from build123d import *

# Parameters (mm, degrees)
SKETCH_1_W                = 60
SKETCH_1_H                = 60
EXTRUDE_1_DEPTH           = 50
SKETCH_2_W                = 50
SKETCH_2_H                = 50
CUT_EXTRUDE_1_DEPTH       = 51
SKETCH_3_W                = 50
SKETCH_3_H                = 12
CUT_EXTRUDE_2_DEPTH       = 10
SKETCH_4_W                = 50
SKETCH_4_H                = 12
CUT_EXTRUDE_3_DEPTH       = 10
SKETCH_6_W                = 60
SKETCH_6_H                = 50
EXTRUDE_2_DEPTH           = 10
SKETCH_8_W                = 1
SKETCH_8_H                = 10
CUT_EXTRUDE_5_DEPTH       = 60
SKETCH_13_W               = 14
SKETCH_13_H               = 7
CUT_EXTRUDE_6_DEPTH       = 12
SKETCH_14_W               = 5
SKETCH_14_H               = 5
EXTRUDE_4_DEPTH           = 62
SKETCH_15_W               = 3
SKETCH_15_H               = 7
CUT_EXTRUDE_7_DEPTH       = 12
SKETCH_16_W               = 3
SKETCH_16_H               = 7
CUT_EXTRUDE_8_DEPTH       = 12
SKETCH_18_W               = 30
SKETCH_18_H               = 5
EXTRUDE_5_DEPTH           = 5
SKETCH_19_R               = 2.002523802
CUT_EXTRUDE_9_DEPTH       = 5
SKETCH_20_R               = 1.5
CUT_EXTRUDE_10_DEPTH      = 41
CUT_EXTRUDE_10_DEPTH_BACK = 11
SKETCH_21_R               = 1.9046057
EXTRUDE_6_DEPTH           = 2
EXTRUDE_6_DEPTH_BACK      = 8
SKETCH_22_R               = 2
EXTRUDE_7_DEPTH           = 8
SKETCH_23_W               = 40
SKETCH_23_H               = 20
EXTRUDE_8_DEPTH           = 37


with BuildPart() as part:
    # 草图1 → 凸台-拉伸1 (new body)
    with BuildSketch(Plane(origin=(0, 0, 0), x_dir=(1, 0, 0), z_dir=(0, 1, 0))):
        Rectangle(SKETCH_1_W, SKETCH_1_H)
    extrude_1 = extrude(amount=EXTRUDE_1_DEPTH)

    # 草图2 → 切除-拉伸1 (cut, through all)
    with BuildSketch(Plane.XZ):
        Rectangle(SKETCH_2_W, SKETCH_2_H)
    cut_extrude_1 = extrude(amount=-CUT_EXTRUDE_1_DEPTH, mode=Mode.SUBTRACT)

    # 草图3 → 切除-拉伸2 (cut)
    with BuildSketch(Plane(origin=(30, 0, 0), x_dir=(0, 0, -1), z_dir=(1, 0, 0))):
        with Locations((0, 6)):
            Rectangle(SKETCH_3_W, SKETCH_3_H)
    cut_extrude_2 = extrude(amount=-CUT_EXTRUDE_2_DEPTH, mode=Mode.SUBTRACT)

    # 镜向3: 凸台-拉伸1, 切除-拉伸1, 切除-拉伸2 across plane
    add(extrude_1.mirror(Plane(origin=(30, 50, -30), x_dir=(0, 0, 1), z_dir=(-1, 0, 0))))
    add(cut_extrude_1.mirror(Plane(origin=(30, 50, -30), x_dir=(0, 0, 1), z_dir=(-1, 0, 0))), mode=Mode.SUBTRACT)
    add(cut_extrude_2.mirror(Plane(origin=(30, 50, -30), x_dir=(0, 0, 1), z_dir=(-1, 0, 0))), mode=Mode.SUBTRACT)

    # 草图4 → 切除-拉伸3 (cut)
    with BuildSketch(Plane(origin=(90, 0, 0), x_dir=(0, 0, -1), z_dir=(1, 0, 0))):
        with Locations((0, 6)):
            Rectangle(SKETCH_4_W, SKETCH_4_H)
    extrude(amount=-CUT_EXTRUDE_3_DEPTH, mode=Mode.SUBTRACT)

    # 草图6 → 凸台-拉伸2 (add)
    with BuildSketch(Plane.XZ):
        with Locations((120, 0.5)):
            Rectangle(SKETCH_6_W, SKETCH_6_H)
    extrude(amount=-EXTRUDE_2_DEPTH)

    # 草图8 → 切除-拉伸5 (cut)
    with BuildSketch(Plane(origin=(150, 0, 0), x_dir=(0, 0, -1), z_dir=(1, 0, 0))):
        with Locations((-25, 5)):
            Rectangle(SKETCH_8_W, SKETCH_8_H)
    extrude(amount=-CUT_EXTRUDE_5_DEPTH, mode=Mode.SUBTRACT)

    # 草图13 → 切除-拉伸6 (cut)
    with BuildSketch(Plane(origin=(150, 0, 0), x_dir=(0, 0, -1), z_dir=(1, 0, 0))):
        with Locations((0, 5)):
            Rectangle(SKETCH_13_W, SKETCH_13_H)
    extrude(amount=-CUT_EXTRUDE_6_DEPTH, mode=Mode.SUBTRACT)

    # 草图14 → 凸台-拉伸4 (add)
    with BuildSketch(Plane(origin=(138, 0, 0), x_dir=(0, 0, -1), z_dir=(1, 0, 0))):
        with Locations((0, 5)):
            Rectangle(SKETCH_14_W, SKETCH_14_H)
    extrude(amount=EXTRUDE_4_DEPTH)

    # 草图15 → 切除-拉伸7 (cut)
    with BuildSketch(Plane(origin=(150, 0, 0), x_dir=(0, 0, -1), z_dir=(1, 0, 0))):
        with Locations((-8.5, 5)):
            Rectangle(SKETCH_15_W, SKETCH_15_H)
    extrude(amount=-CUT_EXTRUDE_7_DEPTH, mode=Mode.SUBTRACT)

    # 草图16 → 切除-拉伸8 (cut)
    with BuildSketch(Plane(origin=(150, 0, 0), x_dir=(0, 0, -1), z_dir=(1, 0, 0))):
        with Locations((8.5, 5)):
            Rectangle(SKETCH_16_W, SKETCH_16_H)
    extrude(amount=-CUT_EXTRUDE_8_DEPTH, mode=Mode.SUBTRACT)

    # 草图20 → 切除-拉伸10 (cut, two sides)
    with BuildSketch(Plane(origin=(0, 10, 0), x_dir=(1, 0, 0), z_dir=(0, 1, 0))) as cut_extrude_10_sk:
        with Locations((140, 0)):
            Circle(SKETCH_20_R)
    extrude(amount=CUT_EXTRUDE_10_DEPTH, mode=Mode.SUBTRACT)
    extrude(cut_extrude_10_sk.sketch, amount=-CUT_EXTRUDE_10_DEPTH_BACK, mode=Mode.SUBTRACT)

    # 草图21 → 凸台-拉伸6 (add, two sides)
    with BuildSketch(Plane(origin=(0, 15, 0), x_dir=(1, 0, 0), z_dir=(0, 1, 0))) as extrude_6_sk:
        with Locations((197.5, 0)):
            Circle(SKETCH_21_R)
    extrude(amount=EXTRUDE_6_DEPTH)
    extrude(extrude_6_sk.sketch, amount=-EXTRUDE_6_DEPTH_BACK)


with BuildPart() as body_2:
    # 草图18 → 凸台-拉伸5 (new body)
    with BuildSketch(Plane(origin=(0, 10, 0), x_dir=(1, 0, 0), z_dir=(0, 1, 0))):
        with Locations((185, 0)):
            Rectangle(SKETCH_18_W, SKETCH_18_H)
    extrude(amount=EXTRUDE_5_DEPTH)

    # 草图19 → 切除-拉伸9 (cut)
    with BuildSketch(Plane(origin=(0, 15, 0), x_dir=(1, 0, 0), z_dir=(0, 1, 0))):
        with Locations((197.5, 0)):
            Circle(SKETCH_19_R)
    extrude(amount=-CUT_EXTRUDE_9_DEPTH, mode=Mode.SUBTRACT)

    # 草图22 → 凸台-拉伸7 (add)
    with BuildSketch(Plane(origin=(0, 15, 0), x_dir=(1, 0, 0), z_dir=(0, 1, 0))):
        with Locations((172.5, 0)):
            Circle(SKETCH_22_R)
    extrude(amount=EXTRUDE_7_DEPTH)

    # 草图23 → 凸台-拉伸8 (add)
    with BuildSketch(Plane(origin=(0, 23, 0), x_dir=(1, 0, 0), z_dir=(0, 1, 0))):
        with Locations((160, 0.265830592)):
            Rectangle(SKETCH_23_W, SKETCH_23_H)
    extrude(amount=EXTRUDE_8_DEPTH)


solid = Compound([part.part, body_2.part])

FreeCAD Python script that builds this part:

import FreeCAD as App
import Part
import Sketcher

V = App.Vector
Q = App.Units.Quantity


def add_polygon(sketch, points):
    """Adds a closed chain of lines whose ends are joined by coincident constraints."""
    first, n = sketch.GeometryCount, len(points)
    for a, b in zip(points, points[1:] + points[:1]):
        sketch.addGeometry(Part.LineSegment(App.Vector(*a, 0), App.Vector(*b, 0)), False)
    for i in range(n):
        sketch.addConstraint(Sketcher.Constraint("Coincident", first + i, 2, first + (i + 1) % n, 1))

doc = App.newDocument("Part")
params = doc.addObject("Spreadsheet::Sheet", "Params")
for row, (alias, value) in enumerate([
    ("sketch1_width", "60 mm"),
    ("pad1_length", "50 mm"),
    ("sketch2_width", "50 mm"),
    ("sketch3_width", "12 mm"),
    ("sketch3_height", "50 mm"),
    ("pocket2_length", "10 mm"),
    ("sketch4_width", "12 mm"),
    ("sketch4_height", "50 mm"),
    ("pocket3_length", "10 mm"),
    ("sketch5_width", "60 mm"),
    ("sketch5_height", "50 mm"),
    ("pad2_length", "10 mm"),
    ("sketch6_width", "10 mm"),
    ("sketch6_height", "1 mm"),
    ("pocket4_length", "60 mm"),
    ("sketch7_width", "7 mm"),
    ("sketch7_height", "14 mm"),
    ("pocket5_length", "12 mm"),
    ("sketch8_width", "5 mm"),
    ("pad3_length", "62 mm"),
    ("sketch9_width", "7 mm"),
    ("sketch9_height", "3 mm"),
    ("pocket6_length", "12 mm"),
    ("sketch10_width", "7 mm"),
    ("sketch10_height", "3 mm"),
    ("pocket7_length", "12 mm"),
    ("sketch11_diameter", "3 mm"),
    ("pad4_length", "2 mm"),
    ("pad4_length2", "8 mm"),
    ("sketch13_width", "30 mm"),
    ("sketch13_height", "5 mm"),
    ("pad5_length", "5 mm"),
    ("pocket9_length", "5 mm"),
    ("sketch15_diameter", "4 mm"),
    ("pad6_length", "8 mm"),
    ("sketch16_width", "40 mm"),
    ("sketch16_height", "20 mm"),
    ("pad7_length", "37 mm"),
], start=1):
    params.set(f"A{row}", alias)
    params.set(f"B{row}", "=" + value)
    params.setAlias(f"B{row}", alias)

body = doc.addObject("PartDesign::Body", "Body")
body.AllowCompound = True

sketch1 = doc.addObject("Sketcher::SketchObject", "Sketch")
body.addObject(sketch1)
sketch1.AttachmentSupport = (doc.XZ_Plane, [""])
sketch1.MapMode = "FlatFace"
add_polygon(sketch1, [(-30, -30), (-30, 30), (30, 30), (30, -30)])
sketch1.addConstraint(Sketcher.Constraint("Vertical", 0))
sketch1.addConstraint(Sketcher.Constraint("Horizontal", 1))
sketch1.addConstraint(Sketcher.Constraint("Vertical", 2))
sketch1.addConstraint(Sketcher.Constraint("Horizontal", 3))
sketch1.addConstraint(Sketcher.Constraint("Symmetric", 0, 2, 2, 2, -1, 1))
sketch1.addConstraint(Sketcher.Constraint("Equal", 3, 0))
sketch1.addConstraint(Sketcher.Constraint("DistanceX", 1, 1, 1, 2, Q("60 mm")))
sketch1.setExpression("Constraints[10]", "Params.sketch1_width")
pad1 = doc.addObject("PartDesign::Pad", "Pad")
body.addObject(pad1)
pad1.Profile = sketch1
pad1.setExpression("Length", "Params.pad1_length")
pad1.Reversed = True

sketch2 = doc.addObject("Sketcher::SketchObject", "Sketch001")
body.addObject(sketch2)
sketch2.AttachmentSupport = (doc.XZ_Plane, [""])
sketch2.MapMode = "FlatFace"
add_polygon(sketch2, [(-25, 25), (-25, -25), (25, -25), (25, 25)])
sketch2.addConstraint(Sketcher.Constraint("Vertical", 0))
sketch2.addConstraint(Sketcher.Constraint("Horizontal", 1))
sketch2.addConstraint(Sketcher.Constraint("Vertical", 2))
sketch2.addConstraint(Sketcher.Constraint("Horizontal", 3))
sketch2.addConstraint(Sketcher.Constraint("Symmetric", 0, 2, 2, 2, -1, 1))
sketch2.addConstraint(Sketcher.Constraint("Equal", 3, 0))
sketch2.addConstraint(Sketcher.Constraint("DistanceX", 1, 1, 1, 2, Q("50 mm")))
sketch2.setExpression("Constraints[10]", "Params.sketch2_width")
pocket1 = doc.addObject("PartDesign::Pocket", "Pocket")
body.addObject(pocket1)
pocket1.Profile = sketch2
pocket1.Type = "ThroughAll"

sketch3 = doc.addObject("Sketcher::SketchObject", "Sketch002")
body.addObject(sketch3)
sketch3.AttachmentSupport = (doc.YZ_Plane, [""])
sketch3.MapMode = "FlatFace"
sketch3.AttachmentOffset = App.Placement(V(0, 0, 30), App.Rotation())
add_polygon(sketch3, [(12, 25), (0, 25), (0, -25), (12, -25)])
sketch3.addConstraint(Sketcher.Constraint("Horizontal", 0))
sketch3.addConstraint(Sketcher.Constraint("Vertical", 1))
sketch3.addConstraint(Sketcher.Constraint("Horizontal", 2))
sketch3.addConstraint(Sketcher.Constraint("Vertical", 3))
sketch3.addConstraint(Sketcher.Constraint("Symmetric", 0, 2, 1, 2, -1, 1))
sketch3.addConstraint(Sketcher.Constraint("DistanceX", 0, 2, 0, 1, Q("12 mm")))
sketch3.addConstraint(Sketcher.Constraint("DistanceY", 1, 2, 1, 1, Q("50 mm")))
sketch3.setExpression("Constraints[9]", "Params.sketch3_width")
sketch3.setExpression("Constraints[10]", "Params.sketch3_height")
pocket2 = doc.addObject("PartDesign::Pocket", "Pocket001")
body.addObject(pocket2)
pocket2.Profile = sketch3
pocket2.setExpression("Length", "Params.pocket2_length")
doc.recompute()

datumplane = doc.addObject("PartDesign::Plane", "DatumPlane")
body.addObject(datumplane)
datumplane.AttachmentSupport = (doc.YZ_Plane, [""])
datumplane.MapMode = "FlatFace"
datumplane.AttachmentOffset = App.Placement(V(0, 0, 30), App.Rotation())
mirrored = doc.addObject("PartDesign::Mirrored", "Mirrored")
body.addObject(mirrored)
mirrored.Originals = [pad1, pocket1, pocket2]
mirrored.MirrorPlane = (datumplane, [""])
body.Tip = mirrored

sketch4 = doc.addObject("Sketcher::SketchObject", "Sketch003")
body.addObject(sketch4)
sketch4.AttachmentSupport = (doc.YZ_Plane, [""])
sketch4.MapMode = "FlatFace"
sketch4.AttachmentOffset = App.Placement(V(0, 0, 90), App.Rotation())
add_polygon(sketch4, [(12, 25), (0, 25), (0, -25), (12, -25)])
sketch4.addConstraint(Sketcher.Constraint("Horizontal", 0))
sketch4.addConstraint(Sketcher.Constraint("Vertical", 1))
sketch4.addConstraint(Sketcher.Constraint("Horizontal", 2))
sketch4.addConstraint(Sketcher.Constraint("Vertical", 3))
sketch4.addConstraint(Sketcher.Constraint("Symmetric", 0, 2, 1, 2, -1, 1))
sketch4.addConstraint(Sketcher.Constraint("DistanceX", 0, 2, 0, 1, Q("12 mm")))
sketch4.addConstraint(Sketcher.Constraint("DistanceY", 1, 2, 1, 1, Q("50 mm")))
sketch4.setExpression("Constraints[9]", "Params.sketch4_width")
sketch4.setExpression("Constraints[10]", "Params.sketch4_height")
pocket3 = doc.addObject("PartDesign::Pocket", "Pocket002")
body.addObject(pocket3)
pocket3.Profile = sketch4
pocket3.setExpression("Length", "Params.pocket3_length")

sketch5 = doc.addObject("Sketcher::SketchObject", "Sketch004")
body.addObject(sketch5)
sketch5.AttachmentSupport = (doc.XZ_Plane, [""])
sketch5.MapMode = "FlatFace"
add_polygon(sketch5, [(90, 25.5), (90, -24.5), (150, -24.5), (150, 25.5)])
sketch5.addConstraint(Sketcher.Constraint("Vertical", 0))
sketch5.addConstraint(Sketcher.Constraint("Horizontal", 1))
sketch5.addConstraint(Sketcher.Constraint("Vertical", 2))
sketch5.addConstraint(Sketcher.Constraint("Horizontal", 3))
sketch5.addConstraint(Sketcher.Constraint("DistanceX", 1, 1, 1, 2, Q("60 mm")))
sketch5.addConstraint(Sketcher.Constraint("DistanceY", 0, 2, 0, 1, Q("50 mm")))
sketch5.addConstraint(Sketcher.Constraint("DistanceX", -1, 1, 0, 2, Q("90 mm")))
sketch5.addConstraint(Sketcher.Constraint("DistanceY", 0, 2, -1, 1, Q("24.5 mm")))
sketch5.setExpression("Constraints[8]", "Params.sketch5_width")
sketch5.setExpression("Constraints[9]", "Params.sketch5_height")
pad2 = doc.addObject("PartDesign::Pad", "Pad001")
body.addObject(pad2)
pad2.Profile = sketch5
pad2.setExpression("Length", "Params.pad2_length")
pad2.Reversed = True

sketch6 = doc.addObject("Sketcher::SketchObject", "Sketch005")
body.addObject(sketch6)
sketch6.AttachmentSupport = (doc.YZ_Plane, [""])
sketch6.MapMode = "FlatFace"
sketch6.AttachmentOffset = App.Placement(V(0, 0, 150), App.Rotation())
add_polygon(sketch6, [(10, 25.5), (0, 25.5), (0, 24.5), (10, 24.5)])
sketch6.addConstraint(Sketcher.Constraint("Horizontal", 0))
sketch6.addConstraint(Sketcher.Constraint("Vertical", 1))
sketch6.addConstraint(Sketcher.Constraint("Horizontal", 2))
sketch6.addConstraint(Sketcher.Constraint("Vertical", 3))
sketch6.addConstraint(Sketcher.Constraint("PointOnObject", 0, 2, -2))
sketch6.addConstraint(Sketcher.Constraint("DistanceX", 0, 2, 0, 1, Q("10 mm")))
sketch6.addConstraint(Sketcher.Constraint("DistanceY", 1, 2, 1, 1, Q("1 mm")))
sketch6.addConstraint(Sketcher.Constraint("DistanceY", -1, 1, 0, 2, Q("25.5 mm")))
sketch6.setExpression("Constraints[9]", "Params.sketch6_width")
sketch6.setExpression("Constraints[10]", "Params.sketch6_height")
pocket4 = doc.addObject("PartDesign::Pocket", "Pocket003")
body.addObject(pocket4)
pocket4.Profile = sketch6
pocket4.setExpression("Length", "Params.pocket4_length")

sketch7 = doc.addObject("Sketcher::SketchObject", "Sketch006")
body.addObject(sketch7)
sketch7.AttachmentSupport = (doc.YZ_Plane, [""])
sketch7.MapMode = "FlatFace"
sketch7.AttachmentOffset = App.Placement(V(0, 0, 150), App.Rotation())
add_polygon(sketch7, [(8.5, 7), (1.5, 7), (1.5, -7), (8.5, -7)])
sketch7.addConstraint(Sketcher.Constraint("Horizontal", 0))
sketch7.addConstraint(Sketcher.Constraint("Vertical", 1))
sketch7.addConstraint(Sketcher.Constraint("Horizontal", 2))
sketch7.addConstraint(Sketcher.Constraint("Vertical", 3))
sketch7.addConstraint(Sketcher.Constraint("DistanceX", 0, 2, 0, 1, Q("7 mm")))
sketch7.addConstraint(Sketcher.Constraint("DistanceY", 1, 2, 1, 1, Q("14 mm")))
sketch7.addConstraint(Sketcher.Constraint("DistanceY", -1, 1, 0, 2, Q("7 mm")))
sketch7.addConstraint(Sketcher.Constraint("DistanceX", -1, 1, 0, 2, Q("1.5 mm")))
sketch7.setExpression("Constraints[8]", "Params.sketch7_width")
sketch7.setExpression("Constraints[9]", "Params.sketch7_height")
pocket5 = doc.addObject("PartDesign::Pocket", "Pocket004")
body.addObject(pocket5)
pocket5.Profile = sketch7
pocket5.setExpression("Length", "Params.pocket5_length")

sketch8 = doc.addObject("Sketcher::SketchObject", "Sketch007")
body.addObject(sketch8)
sketch8.AttachmentSupport = (doc.YZ_Plane, [""])
sketch8.MapMode = "FlatFace"
sketch8.AttachmentOffset = App.Placement(V(0, 0, 138), App.Rotation())
add_polygon(sketch8, [(7.5, 2.5), (2.5, 2.5), (2.5, -2.5), (7.5, -2.5)])
sketch8.addConstraint(Sketcher.Constraint("Horizontal", 0))
sketch8.addConstraint(Sketcher.Constraint("Vertical", 1))
sketch8.addConstraint(Sketcher.Constraint("Horizontal", 2))
sketch8.addConstraint(Sketcher.Constraint("Vertical", 3))
sketch8.addConstraint(Sketcher.Constraint("Equal", 2, 1))
sketch8.addConstraint(Sketcher.Constraint("DistanceX", 0, 2, 0, 1, Q("5 mm")))
sketch8.addConstraint(Sketcher.Constraint("DistanceX", -1, 1, 0, 2, Q("2.5 mm")))
sketch8.addConstraint(Sketcher.Constraint("DistanceY", -1, 1, 0, 2, Q("2.5 mm")))
sketch8.setExpression("Constraints[9]", "Params.sketch8_width")
pad3 = doc.addObject("PartDesign::Pad", "Pad002")
body.addObject(pad3)
pad3.Profile = sketch8
pad3.setExpression("Length", "Params.pad3_length")

sketch9 = doc.addObject("Sketcher::SketchObject", "Sketch008")
body.addObject(sketch9)
sketch9.AttachmentSupport = (doc.YZ_Plane, [""])
sketch9.MapMode = "FlatFace"
sketch9.AttachmentOffset = App.Placement(V(0, 0, 150), App.Rotation())
add_polygon(sketch9, [(8.5, 10), (1.5, 10), (1.5, 7), (8.5, 7)])
sketch9.addConstraint(Sketcher.Constraint("Horizontal", 0))
sketch9.addConstraint(Sketcher.Constraint("Vertical", 1))
sketch9.addConstraint(Sketcher.Constraint("Horizontal", 2))
sketch9.addConstraint(Sketcher.Constraint("Vertical", 3))
sketch9.addConstraint(Sketcher.Constraint("DistanceX", 0, 2, 0, 1, Q("7 mm")))
sketch9.addConstraint(Sketcher.Constraint("DistanceY", 1, 2, 1, 1, Q("3 mm")))
sketch9.addConstraint(Sketcher.Constraint("DistanceY", -1, 1, 0, 2, Q("10 mm")))
sketch9.addConstraint(Sketcher.Constraint("DistanceX", -1, 1, 0, 2, Q("1.5 mm")))
sketch9.setExpression("Constraints[8]", "Params.sketch9_width")
sketch9.setExpression("Constraints[9]", "Params.sketch9_height")
pocket6 = doc.addObject("PartDesign::Pocket", "Pocket005")
body.addObject(pocket6)
pocket6.Profile = sketch9
pocket6.setExpression("Length", "Params.pocket6_length")

sketch10 = doc.addObject("Sketcher::SketchObject", "Sketch009")
body.addObject(sketch10)
sketch10.AttachmentSupport = (doc.YZ_Plane, [""])
sketch10.MapMode = "FlatFace"
sketch10.AttachmentOffset = App.Placement(V(0, 0, 150), App.Rotation())
add_polygon(sketch10, [(8.5, -7), (1.5, -7), (1.5, -10), (8.5, -10)])
sketch10.addConstraint(Sketcher.Constraint("Horizontal", 0))
sketch10.addConstraint(Sketcher.Constraint("Vertical", 1))
sketch10.addConstraint(Sketcher.Constraint("Horizontal", 2))
sketch10.addConstraint(Sketcher.Constraint("Vertical", 3))
sketch10.addConstraint(Sketcher.Constraint("DistanceX", 0, 2, 0, 1, Q("7 mm")))
sketch10.addConstraint(Sketcher.Constraint("DistanceY", 1, 2, 1, 1, Q("3 mm")))
sketch10.addConstraint(Sketcher.Constraint("DistanceY", 0, 2, -1, 1, Q("7 mm")))
sketch10.addConstraint(Sketcher.Constraint("DistanceX", -1, 1, 0, 2, Q("1.5 mm")))
sketch10.setExpression("Constraints[8]", "Params.sketch10_width")
sketch10.setExpression("Constraints[9]", "Params.sketch10_height")
pocket7 = doc.addObject("PartDesign::Pocket", "Pocket006")
body.addObject(pocket7)
pocket7.Profile = sketch10
pocket7.setExpression("Length", "Params.pocket7_length")

sketch11 = doc.addObject("Sketcher::SketchObject", "Sketch010")
body.addObject(sketch11)
sketch11.AttachmentSupport = (doc.XZ_Plane, [""])
sketch11.MapMode = "FlatFace"
sketch11.AttachmentOffset = App.Placement(V(0, 0, -10), App.Rotation())
sketch11.addGeometry(Part.Circle(V(140, 0, 0), V(0, 0, 1), 1.5), False)
sketch11.addConstraint(Sketcher.Constraint("PointOnObject", 0, 3, -1))
sketch11.addConstraint(Sketcher.Constraint("Diameter", 0, Q("3 mm")))
sketch11.addConstraint(Sketcher.Constraint("DistanceX", -1, 1, 0, 3, Q("140 mm")))
sketch11.setExpression("Constraints[1]", "Params.sketch11_diameter")
pocket8 = doc.addObject("PartDesign::Pocket", "Pocket007")
body.addObject(pocket8)
pocket8.Profile = sketch11
pocket8.Type = "ThroughAll"
pocket8.Midplane = True

sketch12 = doc.addObject("Sketcher::SketchObject", "Sketch011")
body.addObject(sketch12)
sketch12.AttachmentSupport = (doc.XZ_Plane, [""])
sketch12.MapMode = "FlatFace"
sketch12.AttachmentOffset = App.Placement(V(0, 0, -15), App.Rotation())
sketch12.addGeometry(Part.Circle(V(197.5, 0, 0), V(0, 0, 1), 1.904606), False)
sketch12.addConstraint(Sketcher.Constraint("PointOnObject", 0, 3, -1))
sketch12.addConstraint(Sketcher.Constraint("DistanceX", -1, 1, 0, 3, Q("197.5 mm")))
sketch12.addConstraint(Sketcher.Constraint("Diameter", 0, Q("3.809211 mm")))
pad4 = doc.addObject("PartDesign::Pad", "Pad003")
body.addObject(pad4)
pad4.Profile = sketch12
pad4.Type = "TwoLengths"
pad4.setExpression("Length", "Params.pad4_length")
pad4.setExpression("Length2", "Params.pad4_length2")
pad4.Reversed = True
body2 = doc.addObject("PartDesign::Body", "Body001")

sketch13 = doc.addObject("Sketcher::SketchObject", "Sketch012")
body2.addObject(sketch13)
sketch13.AttachmentSupport = (doc.getObject("XZ_Plane001"), [""])
sketch13.MapMode = "FlatFace"
sketch13.AttachmentOffset = App.Placement(V(0, 0, -10), App.Rotation())
add_polygon(sketch13, [(170, -2.5), (170, 2.5), (200, 2.5), (200, -2.5)])
sketch13.addConstraint(Sketcher.Constraint("Vertical", 0))
sketch13.addConstraint(Sketcher.Constraint("Horizontal", 1))
sketch13.addConstraint(Sketcher.Constraint("Vertical", 2))
sketch13.addConstraint(Sketcher.Constraint("Horizontal", 3))
sketch13.addConstraint(Sketcher.Constraint("DistanceX", 1, 1, 1, 2, Q("30 mm")))
sketch13.addConstraint(Sketcher.Constraint("DistanceY", 0, 1, 0, 2, Q("5 mm")))
sketch13.addConstraint(Sketcher.Constraint("DistanceX", -1, 1, 0, 2, Q("170 mm")))
sketch13.addConstraint(Sketcher.Constraint("DistanceY", -1, 1, 0, 2, Q("2.5 mm")))
sketch13.setExpression("Constraints[8]", "Params.sketch13_width")
sketch13.setExpression("Constraints[9]", "Params.sketch13_height")
pad5 = doc.addObject("PartDesign::Pad", "Pad004")
body2.addObject(pad5)
pad5.Profile = sketch13
pad5.setExpression("Length", "Params.pad5_length")
pad5.Reversed = True

sketch14 = doc.addObject("Sketcher::SketchObject", "Sketch013")
body2.addObject(sketch14)
sketch14.AttachmentSupport = (doc.getObject("XZ_Plane001"), [""])
sketch14.MapMode = "FlatFace"
sketch14.AttachmentOffset = App.Placement(V(0, 0, -15), App.Rotation())
sketch14.addGeometry(Part.Circle(V(197.5, 0, 0), V(0, 0, 1), 2.002524), False)
sketch14.addConstraint(Sketcher.Constraint("PointOnObject", 0, 3, -1))
sketch14.addConstraint(Sketcher.Constraint("DistanceX", -1, 1, 0, 3, Q("197.5 mm")))
sketch14.addConstraint(Sketcher.Constraint("Diameter", 0, Q("4.005048 mm")))
pocket9 = doc.addObject("PartDesign::Pocket", "Pocket008")
body2.addObject(pocket9)
pocket9.Profile = sketch14
pocket9.setExpression("Length", "Params.pocket9_length")
pocket9.Reversed = True

sketch15 = doc.addObject("Sketcher::SketchObject", "Sketch014")
body2.addObject(sketch15)
sketch15.AttachmentSupport = (doc.getObject("XZ_Plane001"), [""])
sketch15.MapMode = "FlatFace"
sketch15.AttachmentOffset = App.Placement(V(0, 0, -15), App.Rotation())
sketch15.addGeometry(Part.Circle(V(172.5, 0, 0), V(0, 0, 1), 2), False)
sketch15.addConstraint(Sketcher.Constraint("PointOnObject", 0, 3, -1))
sketch15.addConstraint(Sketcher.Constraint("Diameter", 0, Q("4 mm")))
sketch15.addConstraint(Sketcher.Constraint("DistanceX", -1, 1, 0, 3, Q("172.5 mm")))
sketch15.setExpression("Constraints[1]", "Params.sketch15_diameter")
pad6 = doc.addObject("PartDesign::Pad", "Pad005")
body2.addObject(pad6)
pad6.Profile = sketch15
pad6.setExpression("Length", "Params.pad6_length")
pad6.Reversed = True

sketch16 = doc.addObject("Sketcher::SketchObject", "Sketch015")
body2.addObject(sketch16)
sketch16.AttachmentSupport = (doc.getObject("XZ_Plane001"), [""])
sketch16.MapMode = "FlatFace"
sketch16.AttachmentOffset = App.Placement(V(0, 0, -23), App.Rotation())
add_polygon(sketch16, [(140, -10.265831), (140, 9.734169), (180, 9.734169), (180, -10.265831)])
sketch16.addConstraint(Sketcher.Constraint("Vertical", 0))
sketch16.addConstraint(Sketcher.Constraint("Horizontal", 1))
sketch16.addConstraint(Sketcher.Constraint("Vertical", 2))
sketch16.addConstraint(Sketcher.Constraint("Horizontal", 3))
sketch16.addConstraint(Sketcher.Constraint("DistanceX", 1, 1, 1, 2, Q("40 mm")))
sketch16.addConstraint(Sketcher.Constraint("DistanceY", 0, 1, 0, 2, Q("20 mm")))
sketch16.addConstraint(Sketcher.Constraint("DistanceX", -1, 1, 0, 2, Q("140 mm")))
sketch16.addConstraint(Sketcher.Constraint("DistanceY", -1, 1, 0, 2, Q("9.734169 mm")))
sketch16.setExpression("Constraints[8]", "Params.sketch16_width")
sketch16.setExpression("Constraints[9]", "Params.sketch16_height")
pad7 = doc.addObject("PartDesign::Pad", "Pad006")
body2.addObject(pad7)
pad7.Profile = sketch16
pad7.setExpression("Length", "Params.pad7_length")
pad7.Reversed = True

doc.recompute()
